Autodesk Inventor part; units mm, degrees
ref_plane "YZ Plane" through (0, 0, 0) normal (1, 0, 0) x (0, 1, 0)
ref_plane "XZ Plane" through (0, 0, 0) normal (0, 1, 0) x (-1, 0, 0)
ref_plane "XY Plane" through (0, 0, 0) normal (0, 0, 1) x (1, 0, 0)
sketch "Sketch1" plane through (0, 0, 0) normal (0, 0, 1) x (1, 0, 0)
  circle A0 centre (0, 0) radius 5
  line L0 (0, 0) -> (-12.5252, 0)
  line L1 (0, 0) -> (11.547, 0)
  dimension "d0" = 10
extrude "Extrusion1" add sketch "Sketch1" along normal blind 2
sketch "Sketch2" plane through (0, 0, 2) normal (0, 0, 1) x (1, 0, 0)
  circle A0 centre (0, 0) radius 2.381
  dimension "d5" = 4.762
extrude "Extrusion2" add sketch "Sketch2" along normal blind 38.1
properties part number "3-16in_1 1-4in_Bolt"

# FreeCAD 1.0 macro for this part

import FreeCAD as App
import Part
import Sketcher

V = App.Vector

doc = App.newDocument("Part")
body = doc.addObject("PartDesign::Body", "Body")

sketch1 = doc.addObject("Sketcher::SketchObject", "Sketch")
body.addObject(sketch1)
sketch1.AttachmentSupport = (doc.XY_Plane, [""])
sketch1.MapMode = "FlatFace"
sketch1.addGeometry(Part.Circle(V(0, 0, 0), V(0, 0, 1), 5), False)
sketch1.addConstraint([
    Sketcher.Constraint("Coincident", 0, 3, -1, 1),
    Sketcher.Constraint("Diameter", 0, 10.0),
])
pad1 = doc.addObject("PartDesign::Pad", "Pad")
body.addObject(pad1)
pad1.Profile = sketch1
pad1.Length = 2

sketch2 = doc.addObject("Sketcher::SketchObject", "Sketch001")
body.addObject(sketch2)
sketch2.AttachmentSupport = (doc.XY_Plane, [""])
sketch2.MapMode = "FlatFace"
sketch2.AttachmentOffset = App.Placement(V(0, 0, 2), App.Rotation())
sketch2.addGeometry(Part.Circle(V(0, 0, 0), V(0, 0, 1), 2.381), False)
sketch2.addConstraint([
    Sketcher.Constraint("Coincident", 0, 3, -1, 1),
    Sketcher.Constraint("Diameter", 0, 4.762),
])
pad2 = doc.addObject("PartDesign::Pad", "Pad001")
body.addObject(pad2)
pad2.Profile = sketch2
pad2.Length = 38.1

doc.recompute()
